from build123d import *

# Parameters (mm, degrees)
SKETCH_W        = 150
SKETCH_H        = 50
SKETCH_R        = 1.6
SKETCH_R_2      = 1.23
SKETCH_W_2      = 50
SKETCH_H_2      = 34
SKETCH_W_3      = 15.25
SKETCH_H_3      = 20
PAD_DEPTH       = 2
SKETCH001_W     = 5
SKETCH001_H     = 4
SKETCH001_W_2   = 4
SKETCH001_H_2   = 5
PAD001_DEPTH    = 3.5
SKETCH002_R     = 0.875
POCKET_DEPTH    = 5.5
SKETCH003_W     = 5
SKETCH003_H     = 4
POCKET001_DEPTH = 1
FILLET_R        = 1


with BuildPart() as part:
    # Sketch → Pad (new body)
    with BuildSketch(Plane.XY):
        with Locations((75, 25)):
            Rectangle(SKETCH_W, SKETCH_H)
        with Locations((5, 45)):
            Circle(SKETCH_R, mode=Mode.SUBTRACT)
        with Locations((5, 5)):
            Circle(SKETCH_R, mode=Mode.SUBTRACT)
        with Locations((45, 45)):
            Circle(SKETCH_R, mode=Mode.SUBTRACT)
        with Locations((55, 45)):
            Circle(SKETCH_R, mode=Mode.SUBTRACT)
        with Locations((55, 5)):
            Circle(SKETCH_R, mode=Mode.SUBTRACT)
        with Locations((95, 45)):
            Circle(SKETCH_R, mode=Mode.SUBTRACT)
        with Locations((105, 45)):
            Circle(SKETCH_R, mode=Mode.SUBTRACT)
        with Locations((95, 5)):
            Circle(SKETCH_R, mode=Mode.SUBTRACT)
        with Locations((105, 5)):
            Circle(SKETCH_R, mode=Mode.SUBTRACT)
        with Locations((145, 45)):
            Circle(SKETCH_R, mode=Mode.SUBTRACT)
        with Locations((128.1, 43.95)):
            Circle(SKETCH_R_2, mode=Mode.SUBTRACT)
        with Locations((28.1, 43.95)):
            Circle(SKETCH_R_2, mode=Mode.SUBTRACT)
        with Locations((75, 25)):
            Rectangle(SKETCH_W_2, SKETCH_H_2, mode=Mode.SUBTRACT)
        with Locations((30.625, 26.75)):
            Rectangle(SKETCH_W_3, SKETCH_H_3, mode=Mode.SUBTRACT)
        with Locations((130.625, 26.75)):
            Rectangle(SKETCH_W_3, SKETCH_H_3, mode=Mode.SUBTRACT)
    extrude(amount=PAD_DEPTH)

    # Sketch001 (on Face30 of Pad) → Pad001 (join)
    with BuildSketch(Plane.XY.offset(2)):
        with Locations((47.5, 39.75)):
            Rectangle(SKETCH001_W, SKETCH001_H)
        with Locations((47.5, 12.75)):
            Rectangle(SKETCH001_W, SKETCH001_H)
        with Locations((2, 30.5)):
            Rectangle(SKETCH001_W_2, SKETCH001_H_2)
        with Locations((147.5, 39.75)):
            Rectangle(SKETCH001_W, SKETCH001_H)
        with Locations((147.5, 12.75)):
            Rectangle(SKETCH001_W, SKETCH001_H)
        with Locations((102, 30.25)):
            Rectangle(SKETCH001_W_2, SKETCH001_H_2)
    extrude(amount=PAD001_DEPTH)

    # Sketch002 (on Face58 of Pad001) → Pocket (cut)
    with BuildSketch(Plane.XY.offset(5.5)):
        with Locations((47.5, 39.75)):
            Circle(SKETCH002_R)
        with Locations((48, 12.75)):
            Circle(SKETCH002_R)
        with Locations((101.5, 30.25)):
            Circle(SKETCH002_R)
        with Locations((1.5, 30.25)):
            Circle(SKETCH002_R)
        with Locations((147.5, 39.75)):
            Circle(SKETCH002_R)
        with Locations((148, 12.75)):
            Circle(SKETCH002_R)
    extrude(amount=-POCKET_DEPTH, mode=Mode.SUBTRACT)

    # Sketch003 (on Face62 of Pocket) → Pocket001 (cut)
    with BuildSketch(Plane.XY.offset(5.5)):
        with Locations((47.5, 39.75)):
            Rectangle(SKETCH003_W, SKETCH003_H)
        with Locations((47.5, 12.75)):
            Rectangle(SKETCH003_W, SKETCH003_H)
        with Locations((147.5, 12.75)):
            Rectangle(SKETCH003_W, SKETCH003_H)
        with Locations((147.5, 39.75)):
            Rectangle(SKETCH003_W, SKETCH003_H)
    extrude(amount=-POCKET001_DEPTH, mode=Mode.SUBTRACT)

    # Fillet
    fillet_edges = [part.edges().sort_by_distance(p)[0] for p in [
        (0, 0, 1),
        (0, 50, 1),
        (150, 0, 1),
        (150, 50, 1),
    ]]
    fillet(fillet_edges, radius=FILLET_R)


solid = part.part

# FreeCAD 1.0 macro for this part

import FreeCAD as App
import Part
import Sketcher

V = App.Vector
Q = App.Units.Quantity


def edges_at(feature, points):
    """Names of the edges that pass closest to the given points."""
    edges = feature.Shape.Edges
    near = lambda p: min(range(len(edges)), key=lambda i: edges[i].distToShape(Part.Vertex(*p))[0])
    return sorted({f"Edge{near(p) + 1}" for p in points})


def add_polygon(sketch, points):
    """Adds a closed chain of lines whose ends are joined by coincident constraints."""
    first, n = sketch.GeometryCount, len(points)
    for a, b in zip(points, points[1:] + points[:1]):
        sketch.addGeometry(Part.LineSegment(App.Vector(*a, 0), App.Vector(*b, 0)), False)
    for i in range(n):
        sketch.addConstraint(Sketcher.Constraint("Coincident", first + i, 2, first + (i + 1) % n, 1))

doc = App.newDocument("Part")
body = doc.addObject("PartDesign::Body", "Body")

sketch1 = body.newObject("Sketcher::SketchObject", "Sketch")
sketch1.AttachmentSupport = (doc.getObject("XY_Plane"), [""])
sketch1.MapMode = "FlatFace"
add_polygon(sketch1, [(0, 50), (0, 0), (150, 0), (150, 50)])
sketch1.addGeometry(Part.Circle(V(5, 5, 0), V(0, 0, 1), 1.6), False)
sketch1.addGeometry(Part.Circle(V(55, 5, 0), V(0, 0, 1), 1.6), False)
sketch1.addGeometry(Part.Circle(V(95, 5, 0), V(0, 0, 1), 1.6), False)
sketch1.addGeometry(Part.Circle(V(105, 5, 0), V(0, 0, 1), 1.6), False)
add_polygon(sketch1, [(38.25, 16.75), (23, 16.75), (23, 36.75), (38.25, 36.75)])
sketch1.addGeometry(Part.Circle(V(5, 45, 0), V(0, 0, 1), 1.6), False)
sketch1.addGeometry(Part.Circle(V(28.1, 43.95, 0), V(0, 0, 1), 1.23), False)
sketch1.addGeometry(Part.Circle(V(45, 45, 0), V(0, 0, 1), 1.6), False)
sketch1.addGeometry(Part.Circle(V(55, 45, 0), V(0, 0, 1), 1.6), False)
add_polygon(sketch1, [(100, 8), (50, 8), (50, 42), (100, 42)])
add_polygon(sketch1, [(138.25, 16.75), (123, 16.75), (123, 36.75), (138.25, 36.75)])
sketch1.addGeometry(Part.Circle(V(95, 45, 0), V(0, 0, 1), 1.6), False)
sketch1.addGeometry(Part.Circle(V(105, 45, 0), V(0, 0, 1), 1.6), False)
sketch1.addGeometry(Part.Circle(V(128.1, 43.95, 0), V(0, 0, 1), 1.23), False)
sketch1.addGeometry(Part.Circle(V(145, 45, 0), V(0, 0, 1), 1.6), False)
sketch1.addConstraint(Sketcher.Constraint("Vertical", 0))
sketch1.addConstraint(Sketcher.Constraint("Horizontal", 1))
sketch1.addConstraint(Sketcher.Constraint("Vertical", 2))
sketch1.addConstraint(Sketcher.Constraint("Horizontal", 3))
sketch1.addConstraint(Sketcher.Constraint("Horizontal", 8))
sketch1.addConstraint(Sketcher.Constraint("Vertical", 9))
sketch1.addConstraint(Sketcher.Constraint("Horizontal", 10))
sketch1.addConstraint(Sketcher.Constraint("Vertical", 11))
sketch1.addConstraint(Sketcher.Constraint("Horizontal", 16))
sketch1.addConstraint(Sketcher.Constraint("Vertical", 17))
sketch1.addConstraint(Sketcher.Constraint("Horizontal", 18))
sketch1.addConstraint(Sketcher.Constraint("Vertical", 19))
sketch1.addConstraint(Sketcher.Constraint("Horizontal", 20))
sketch1.addConstraint(Sketcher.Constraint("Vertical", 21))
sketch1.addConstraint(Sketcher.Constraint("Horizontal", 22))
sketch1.addConstraint(Sketcher.Constraint("Vertical", 23))
sketch1.addConstraint(Sketcher.Constraint("Coincident", 0, 2, -1, 1))
sketch1.addConstraint(Sketcher.Constraint("Equal", 4, 5))
sketch1.addConstraint(Sketcher.Constraint("Equal", 5, 6))
sketch1.addConstraint(Sketcher.Constraint("Equal", 6, 7))
sketch1.addConstraint(Sketcher.Constraint("Equal", 7, 12))
sketch1.addConstraint(Sketcher.Constraint("Equal", 12, 14))
sketch1.addConstraint(Sketcher.Constraint("Equal", 14, 15))
sketch1.addConstraint(Sketcher.Constraint("Equal", 15, 24))
sketch1.addConstraint(Sketcher.Constraint("Equal", 24, 25))
sketch1.addConstraint(Sketcher.Constraint("Equal", 13, 26))
sketch1.addConstraint(Sketcher.Constraint("Equal", 25, 27))
sketch1.addConstraint(Sketcher.Constraint("Horizontal", 4, 3, 5, 3))
sketch1.addConstraint(Sketcher.Constraint("Horizontal", 5, 3, 6, 3))
sketch1.addConstraint(Sketcher.Constraint("Horizontal", 6, 3, 7, 3))
sketch1.addConstraint(Sketcher.Constraint("Horizontal", 12, 3, 14, 3))
sketch1.addConstraint(Sketcher.Constraint("Horizontal", 14, 3, 15, 3))
sketch1.addConstraint(Sketcher.Constraint("Horizontal", 15, 3, 24, 3))
sketch1.addConstraint(Sketcher.Constraint("Horizontal", 24, 3, 25, 3))
sketch1.addConstraint(Sketcher.Constraint("Horizontal", 13, 3, 26, 3))
sketch1.addConstraint(Sketcher.Constraint("Horizontal", 25, 3, 27, 3))
sketch1.addConstraint(Sketcher.Constraint("Horizontal", 11, 2, 20, 2))
sketch1.addConstraint(Sketcher.Constraint("Horizontal", 10, 2, 21, 2))
sketch1.addConstraint(Sketcher.Constraint("Vertical", 4, 3, 12, 3))
sketch1.addConstraint(Sketcher.Constraint("Vertical", 5, 3, 15, 3))
sketch1.addConstraint(Sketcher.Constraint("Vertical", 6, 3, 24, 3))
sketch1.addConstraint(Sketcher.Constraint("Vertical", 7, 3, 25, 3))
sketch1.addConstraint(Sketcher.Constraint("Equal", 10, 20))
sketch1.addConstraint(Sketcher.Constraint("Equal", 18, 0))
sketch1.addConstraint(Sketcher.Constraint("Diameter", 4, Q("3.2 mm")))
sketch1.addConstraint(Sketcher.Constraint("Diameter", 13, Q("2.46 mm")))
sketch1.addConstraint(Sketcher.Constraint("DistanceX", 1, 1, 1, 2, Q("150 mm")))
sketch1.addConstraint(Sketcher.Constraint("DistanceX", 16, 2, 16, 1, Q("50 mm")))
sketch1.addConstraint(Sketcher.Constraint("DistanceY", 9, 1, 9, 2, Q("20 mm")))
sketch1.addConstraint(Sketcher.Constraint("DistanceY", 17, 1, 17, 2, Q("34 mm")))
sketch1.addConstraint(Sketcher.Constraint("DistanceX", -1, 1, 4, 3, Q("5 mm")))
sketch1.addConstraint(Sketcher.Constraint("DistanceY", -1, 1, 4, 3, Q("5 mm")))
sketch1.addConstraint(Sketcher.Constraint("DistanceX", -1, 1, 5, 3, Q("55 mm")))
sketch1.addConstraint(Sketcher.Constraint("DistanceX", -1, 1, 6, 3, Q("95 mm")))
sketch1.addConstraint(Sketcher.Constraint("DistanceX", -1, 1, 7, 3, Q("105 mm")))
sketch1.addConstraint(Sketcher.Constraint("DistanceY", -1, 1, 12, 3, Q("45 mm")))
sketch1.addConstraint(Sketcher.Constraint("DistanceX", -1, 1, 14, 3, Q("45 mm")))
sketch1.addConstraint(Sketcher.Constraint("DistanceX", -1, 1, 27, 3, Q("145 mm")))
sketch1.addConstraint(Sketcher.Constraint("DistanceX", -1, 1, 8, 2, Q("23 mm")))
sketch1.addConstraint(Sketcher.Constraint("DistanceX", -1, 1, 16, 2, Q("50 mm")))
sketch1.addConstraint(Sketcher.Constraint("DistanceY", -1, 1, 16, 2, Q("8 mm")))
sketch1.addConstraint(Sketcher.Constraint("DistanceX", -1, 1, 20, 2, Q("123 mm")))
sketch1.addConstraint(Sketcher.Constraint("DistanceX", 8, 2, 8, 1, Q("15.25 mm")))
sketch1.addConstraint(Sketcher.Constraint("DistanceX", -1, 1, 13, 3, Q("28.1 mm")))
sketch1.addConstraint(Sketcher.Constraint("DistanceX", -1, 1, 26, 3, Q("128.1 mm")))
sketch1.addConstraint(Sketcher.Constraint("DistanceY", 8, 2, 13, 3, Q("27.2 mm")))
sketch1.addConstraint(Sketcher.Constraint("DistanceY", -1, 1, 13, 3, Q("43.95 mm")))
pad1 = body.newObject("PartDesign::Pad", "Pad")
pad1.Profile = sketch1
pad1.Length = 2

sketch2 = body.newObject("Sketcher::SketchObject", "Sketch001")
sketch2.AttachmentSupport = (doc.getObject("XY_Plane"), [""])
sketch2.MapMode = "FlatFace"
sketch2.AttachmentOffset = App.Placement(V(0, 0, 2), App.Rotation())
add_polygon(sketch2, [(45, 41.75), (45, 37.75), (50, 37.75), (50, 41.75)])
add_polygon(sketch2, [(45, 14.75), (45, 10.75), (50, 10.75), (50, 14.75)])
add_polygon(sketch2, [(0, 33), (0, 28), (4, 28), (4, 33)])
add_polygon(sketch2, [(145, 41.75), (145, 37.75), (150, 37.75), (150, 41.75)])
add_polygon(sketch2, [(145, 14.75), (145, 10.75), (150, 10.75), (150, 14.75)])
add_polygon(sketch2, [(100, 32.75), (100, 27.75), (104, 27.75), (104, 32.75)])
sketch2.addConstraint(Sketcher.Constraint("Vertical", 0))
sketch2.addConstraint(Sketcher.Constraint("Horizontal", 1))
sketch2.addConstraint(Sketcher.Constraint("Vertical", 2))
sketch2.addConstraint(Sketcher.Constraint("Horizontal", 3))
sketch2.addConstraint(Sketcher.Constraint("Vertical", 4))
sketch2.addConstraint(Sketcher.Constraint("Horizontal", 5))
sketch2.addConstraint(Sketcher.Constraint("Vertical", 6))
sketch2.addConstraint(Sketcher.Constraint("Horizontal", 7))
sketch2.addConstraint(Sketcher.Constraint("Vertical", 8))
sketch2.addConstraint(Sketcher.Constraint("Horizontal", 9))
sketch2.addConstraint(Sketcher.Constraint("Vertical", 10))
sketch2.addConstraint(Sketcher.Constraint("Horizontal", 11))
sketch2.addConstraint(Sketcher.Constraint("Vertical", 12))
sketch2.addConstraint(Sketcher.Constraint("Horizontal", 13))
sketch2.addConstraint(Sketcher.Constraint("Vertical", 14))
sketch2.addConstraint(Sketcher.Constraint("Horizontal", 15))
sketch2.addConstraint(Sketcher.Constraint("Vertical", 16))
sketch2.addConstraint(Sketcher.Constraint("Horizontal", 17))
sketch2.addConstraint(Sketcher.Constraint("Vertical", 18))
sketch2.addConstraint(Sketcher.Constraint("Horizontal", 19))
sketch2.addConstraint(Sketcher.Constraint("Vertical", 20))
sketch2.addConstraint(Sketcher.Constraint("Horizontal", 21))
sketch2.addConstraint(Sketcher.Constraint("Vertical", 22))
sketch2.addConstraint(Sketcher.Constraint("Horizontal", 23))
sketch2.addConstraint(Sketcher.Constraint("PointOnObject", 8, 2, -2))
sketch2.addConstraint(Sketcher.Constraint("Horizontal", 1, 2, 12, 2))
sketch2.addConstraint(Sketcher.Constraint("Horizontal", 3, 2, 14, 2))
sketch2.addConstraint(Sketcher.Constraint("Horizontal", 5, 2, 16, 2))
sketch2.addConstraint(Sketcher.Constraint("Horizontal", 7, 2, 18, 2))
sketch2.addConstraint(Sketcher.Constraint("Vertical", 3, 2, 4, 2))
sketch2.addConstraint(Sketcher.Constraint("Vertical", 2, 2, 5, 2))
sketch2.addConstraint(Sketcher.Constraint("Vertical", 15, 2, 16, 2))
sketch2.addConstraint(Sketcher.Constraint("Vertical", 14, 2, 17, 2))
sketch2.addConstraint(Sketcher.Constraint("Equal", 7, 13))
sketch2.addConstraint(Sketcher.Constraint("Equal", 11, 21))
sketch2.addConstraint(Sketcher.Constraint("Equal", 23, 0))
sketch2.addConstraint(Sketcher.Constraint("Equal", 2, 4))
sketch2.addConstraint(Sketcher.Constraint("Equal", 19, 8))
sketch2.addConstraint(Sketcher.Constraint("Equal", 10, 20))
sketch2.addConstraint(Sketcher.Constraint("DistanceX", 1, 1, 1, 2, Q("5 mm")))
sketch2.addConstraint(Sketcher.Constraint("DistanceX", 9, 1, 9, 2, Q("4 mm")))
sketch2.addConstraint(Sketcher.Constraint("DistanceX", -1, 1, 0, 2, Q("45 mm")))
sketch2.addConstraint(Sketcher.Constraint("DistanceY", -1, 1, 8, 2, Q("28 mm")))
sketch2.addConstraint(Sketcher.Constraint("DistanceX", -1, 1, 12, 2, Q("145 mm")))
sketch2.addConstraint(Sketcher.Constraint("DistanceX", -1, 1, 20, 2, Q("100 mm")))
sketch2.addConstraint(Sketcher.Constraint("DistanceY", 4, 2, 0, 2, Q("27 mm")))
sketch2.addConstraint(Sketcher.Constraint("DistanceY", 20, 2, 12, 2, Q("10 mm")))
sketch2.addConstraint(Sketcher.Constraint("DistanceY", -1, 1, 0, 2, Q("37.75 mm")))
pad2 = body.newObject("PartDesign::Pad", "Pad001")
pad2.Profile = sketch2
pad2.Length = 3.5

sketch3 = body.newObject("Sketcher::SketchObject", "Sketch002")
sketch3.AttachmentSupport = (doc.getObject("XY_Plane"), [""])
sketch3.MapMode = "FlatFace"
sketch3.AttachmentOffset = App.Placement(V(0, 0, 5.5), App.Rotation())
sketch3.addGeometry(Part.Circle(V(47.5, 39.75, 0), V(0, 0, 1), 0.875), False)
sketch3.addGeometry(Part.Circle(V(48, 12.75, 0), V(0, 0, 1), 0.875), False)
sketch3.addGeometry(Part.Circle(V(101.5, 30.25, 0), V(0, 0, 1), 0.875), False)
sketch3.addGeometry(Part.Circle(V(1.5, 30.25, 0), V(0, 0, 1), 0.875), False)
sketch3.addGeometry(Part.Circle(V(147.5, 39.75, 0), V(0, 0, 1), 0.875), False)
sketch3.addGeometry(Part.Circle(V(148, 12.75, 0), V(0, 0, 1), 0.875), False)
sketch3.addConstraint(Sketcher.Constraint("Equal", 0, 1))
sketch3.addConstraint(Sketcher.Constraint("Equal", 1, 2))
sketch3.addConstraint(Sketcher.Constraint("Equal", 2, 3))
sketch3.addConstraint(Sketcher.Constraint("Equal", 3, 4))
sketch3.addConstraint(Sketcher.Constraint("Equal", 4, 5))
sketch3.addConstraint(Sketcher.Constraint("Horizontal", 2, 3, 3, 3))
sketch3.addConstraint(Sketcher.Constraint("Horizontal", 0, 3, 4, 3))
sketch3.addConstraint(Sketcher.Constraint("Horizontal", 1, 3, 5, 3))
sketch3.addConstraint(Sketcher.Constraint("Diameter", 0, Q("1.75 mm")))
sketch3.addConstraint(Sketcher.Constraint("DistanceX", -1, 1, 1, 3, Q("48 mm")))
sketch3.addConstraint(Sketcher.Constraint("DistanceX", -1, 1, 5, 3, Q("148 mm")))
sketch3.addConstraint(Sketcher.Constraint("DistanceY", 1, 3, 0, 3, Q("27 mm")))
sketch3.addConstraint(Sketcher.Constraint("DistanceX", 0, 3, 2, 3, Q("54 mm")))
sketch3.addConstraint(Sketcher.Constraint("DistanceX", 3, 3, 0, 3, Q("46 mm")))
sketch3.addConstraint(Sketcher.Constraint("DistanceX", 2, 3, 4, 3, Q("46 mm")))
sketch3.addConstraint(Sketcher.Constraint("DistanceX", -1, 1, 0, 3, Q("47.5 mm")))
sketch3.addConstraint(Sketcher.Constraint("DistanceY", 2, 3, 0, 3, Q("9.5 mm")))
sketch3.addConstraint(Sketcher.Constraint("DistanceY", -1, 1, 0, 3, Q("39.75 mm")))
pocket1 = body.newObject("PartDesign::Pocket", "Pocket")
pocket1.Profile = sketch3
pocket1.Length = 5.5

sketch4 = body.newObject("Sketcher::SketchObject", "Sketch003")
sketch4.AttachmentSupport = (doc.getObject("XY_Plane"), [""])
sketch4.MapMode = "FlatFace"
sketch4.AttachmentOffset = App.Placement(V(0, 0, 5.5), App.Rotation())
add_polygon(sketch4, [(45, 41.75), (45, 37.75), (50, 37.75), (50, 41.75)])
add_polygon(sketch4, [(45, 14.75), (45, 10.75), (50, 10.75), (50, 14.75)])
add_polygon(sketch4, [(145, 14.75), (145, 10.75), (150, 10.75), (150, 14.75)])
add_polygon(sketch4, [(145, 41.75), (145, 37.75), (150, 37.75), (150, 41.75)])
sketch4.addConstraint(Sketcher.Constraint("Vertical", 0))
sketch4.addConstraint(Sketcher.Constraint("Horizontal", 1))
sketch4.addConstraint(Sketcher.Constraint("Vertical", 2))
sketch4.addConstraint(Sketcher.Constraint("Horizontal", 3))
sketch4.addConstraint(Sketcher.Constraint("Vertical", 4))
sketch4.addConstraint(Sketcher.Constraint("Horizontal", 5))
sketch4.addConstraint(Sketcher.Constraint("Vertical", 6))
sketch4.addConstraint(Sketcher.Constraint("Horizontal", 7))
sketch4.addConstraint(Sketcher.Constraint("Vertical", 8))
sketch4.addConstraint(Sketcher.Constraint("Horizontal", 9))
sketch4.addConstraint(Sketcher.Constraint("Vertical", 10))
sketch4.addConstraint(Sketcher.Constraint("Horizontal", 11))
sketch4.addConstraint(Sketcher.Constraint("Vertical", 12))
sketch4.addConstraint(Sketcher.Constraint("Horizontal", 13))
sketch4.addConstraint(Sketcher.Constraint("Vertical", 14))
sketch4.addConstraint(Sketcher.Constraint("Horizontal", 15))
sketch4.addConstraint(Sketcher.Constraint("Horizontal", 5, 2, 8, 2))
sketch4.addConstraint(Sketcher.Constraint("Horizontal", 7, 2, 10, 2))
sketch4.addConstraint(Sketcher.Constraint("Horizontal", 1, 2, 12, 2))
sketch4.addConstraint(Sketcher.Constraint("Horizontal", 3, 2, 14, 2))
sketch4.addConstraint(Sketcher.Constraint("Vertical", 3, 2, 4, 2))
sketch4.addConstraint(Sketcher.Constraint("Vertical", 2, 2, 5, 2))
sketch4.addConstraint(Sketcher.Constraint("Vertical", 11, 2, 12, 2))
sketch4.addConstraint(Sketcher.Constraint("Vertical", 10, 2, 13, 2))
sketch4.addConstraint(Sketcher.Constraint("Equal", 7, 9))
sketch4.addConstraint(Sketcher.Constraint("Equal", 2, 4))
sketch4.addConstraint(Sketcher.Constraint("DistanceX", 1, 1, 1, 2, Q("5 mm")))
sketch4.addConstraint(Sketcher.Constraint("DistanceY", 0, 2, 0, 1, Q("4 mm")))
sketch4.addConstraint(Sketcher.Constraint("DistanceX", -1, 1, 0, 2, Q("45 mm")))
sketch4.addConstraint(Sketcher.Constraint("DistanceX", -1, 1, 8, 2, Q("145 mm")))
sketch4.addConstraint(Sketcher.Constraint("DistanceY", 4, 2, 0, 2, Q("27 mm")))
sketch4.addConstraint(Sketcher.Constraint("DistanceY", -1, 1, 0, 2, Q("37.75 mm")))
pocket2 = body.newObject("PartDesign::Pocket", "Pocket001")
pocket2.Profile = sketch4
pocket2.Length = 1
doc.recompute()

fillet = body.newObject("PartDesign::Fillet", "Fillet")
fillet.Base = (pocket2, edges_at(pocket2, [
    (0, 0, 1),
    (0, 50, 1),
    (150, 0, 1),
    (150, 50, 1),
]))
fillet.Radius = 1

doc.recompute()
